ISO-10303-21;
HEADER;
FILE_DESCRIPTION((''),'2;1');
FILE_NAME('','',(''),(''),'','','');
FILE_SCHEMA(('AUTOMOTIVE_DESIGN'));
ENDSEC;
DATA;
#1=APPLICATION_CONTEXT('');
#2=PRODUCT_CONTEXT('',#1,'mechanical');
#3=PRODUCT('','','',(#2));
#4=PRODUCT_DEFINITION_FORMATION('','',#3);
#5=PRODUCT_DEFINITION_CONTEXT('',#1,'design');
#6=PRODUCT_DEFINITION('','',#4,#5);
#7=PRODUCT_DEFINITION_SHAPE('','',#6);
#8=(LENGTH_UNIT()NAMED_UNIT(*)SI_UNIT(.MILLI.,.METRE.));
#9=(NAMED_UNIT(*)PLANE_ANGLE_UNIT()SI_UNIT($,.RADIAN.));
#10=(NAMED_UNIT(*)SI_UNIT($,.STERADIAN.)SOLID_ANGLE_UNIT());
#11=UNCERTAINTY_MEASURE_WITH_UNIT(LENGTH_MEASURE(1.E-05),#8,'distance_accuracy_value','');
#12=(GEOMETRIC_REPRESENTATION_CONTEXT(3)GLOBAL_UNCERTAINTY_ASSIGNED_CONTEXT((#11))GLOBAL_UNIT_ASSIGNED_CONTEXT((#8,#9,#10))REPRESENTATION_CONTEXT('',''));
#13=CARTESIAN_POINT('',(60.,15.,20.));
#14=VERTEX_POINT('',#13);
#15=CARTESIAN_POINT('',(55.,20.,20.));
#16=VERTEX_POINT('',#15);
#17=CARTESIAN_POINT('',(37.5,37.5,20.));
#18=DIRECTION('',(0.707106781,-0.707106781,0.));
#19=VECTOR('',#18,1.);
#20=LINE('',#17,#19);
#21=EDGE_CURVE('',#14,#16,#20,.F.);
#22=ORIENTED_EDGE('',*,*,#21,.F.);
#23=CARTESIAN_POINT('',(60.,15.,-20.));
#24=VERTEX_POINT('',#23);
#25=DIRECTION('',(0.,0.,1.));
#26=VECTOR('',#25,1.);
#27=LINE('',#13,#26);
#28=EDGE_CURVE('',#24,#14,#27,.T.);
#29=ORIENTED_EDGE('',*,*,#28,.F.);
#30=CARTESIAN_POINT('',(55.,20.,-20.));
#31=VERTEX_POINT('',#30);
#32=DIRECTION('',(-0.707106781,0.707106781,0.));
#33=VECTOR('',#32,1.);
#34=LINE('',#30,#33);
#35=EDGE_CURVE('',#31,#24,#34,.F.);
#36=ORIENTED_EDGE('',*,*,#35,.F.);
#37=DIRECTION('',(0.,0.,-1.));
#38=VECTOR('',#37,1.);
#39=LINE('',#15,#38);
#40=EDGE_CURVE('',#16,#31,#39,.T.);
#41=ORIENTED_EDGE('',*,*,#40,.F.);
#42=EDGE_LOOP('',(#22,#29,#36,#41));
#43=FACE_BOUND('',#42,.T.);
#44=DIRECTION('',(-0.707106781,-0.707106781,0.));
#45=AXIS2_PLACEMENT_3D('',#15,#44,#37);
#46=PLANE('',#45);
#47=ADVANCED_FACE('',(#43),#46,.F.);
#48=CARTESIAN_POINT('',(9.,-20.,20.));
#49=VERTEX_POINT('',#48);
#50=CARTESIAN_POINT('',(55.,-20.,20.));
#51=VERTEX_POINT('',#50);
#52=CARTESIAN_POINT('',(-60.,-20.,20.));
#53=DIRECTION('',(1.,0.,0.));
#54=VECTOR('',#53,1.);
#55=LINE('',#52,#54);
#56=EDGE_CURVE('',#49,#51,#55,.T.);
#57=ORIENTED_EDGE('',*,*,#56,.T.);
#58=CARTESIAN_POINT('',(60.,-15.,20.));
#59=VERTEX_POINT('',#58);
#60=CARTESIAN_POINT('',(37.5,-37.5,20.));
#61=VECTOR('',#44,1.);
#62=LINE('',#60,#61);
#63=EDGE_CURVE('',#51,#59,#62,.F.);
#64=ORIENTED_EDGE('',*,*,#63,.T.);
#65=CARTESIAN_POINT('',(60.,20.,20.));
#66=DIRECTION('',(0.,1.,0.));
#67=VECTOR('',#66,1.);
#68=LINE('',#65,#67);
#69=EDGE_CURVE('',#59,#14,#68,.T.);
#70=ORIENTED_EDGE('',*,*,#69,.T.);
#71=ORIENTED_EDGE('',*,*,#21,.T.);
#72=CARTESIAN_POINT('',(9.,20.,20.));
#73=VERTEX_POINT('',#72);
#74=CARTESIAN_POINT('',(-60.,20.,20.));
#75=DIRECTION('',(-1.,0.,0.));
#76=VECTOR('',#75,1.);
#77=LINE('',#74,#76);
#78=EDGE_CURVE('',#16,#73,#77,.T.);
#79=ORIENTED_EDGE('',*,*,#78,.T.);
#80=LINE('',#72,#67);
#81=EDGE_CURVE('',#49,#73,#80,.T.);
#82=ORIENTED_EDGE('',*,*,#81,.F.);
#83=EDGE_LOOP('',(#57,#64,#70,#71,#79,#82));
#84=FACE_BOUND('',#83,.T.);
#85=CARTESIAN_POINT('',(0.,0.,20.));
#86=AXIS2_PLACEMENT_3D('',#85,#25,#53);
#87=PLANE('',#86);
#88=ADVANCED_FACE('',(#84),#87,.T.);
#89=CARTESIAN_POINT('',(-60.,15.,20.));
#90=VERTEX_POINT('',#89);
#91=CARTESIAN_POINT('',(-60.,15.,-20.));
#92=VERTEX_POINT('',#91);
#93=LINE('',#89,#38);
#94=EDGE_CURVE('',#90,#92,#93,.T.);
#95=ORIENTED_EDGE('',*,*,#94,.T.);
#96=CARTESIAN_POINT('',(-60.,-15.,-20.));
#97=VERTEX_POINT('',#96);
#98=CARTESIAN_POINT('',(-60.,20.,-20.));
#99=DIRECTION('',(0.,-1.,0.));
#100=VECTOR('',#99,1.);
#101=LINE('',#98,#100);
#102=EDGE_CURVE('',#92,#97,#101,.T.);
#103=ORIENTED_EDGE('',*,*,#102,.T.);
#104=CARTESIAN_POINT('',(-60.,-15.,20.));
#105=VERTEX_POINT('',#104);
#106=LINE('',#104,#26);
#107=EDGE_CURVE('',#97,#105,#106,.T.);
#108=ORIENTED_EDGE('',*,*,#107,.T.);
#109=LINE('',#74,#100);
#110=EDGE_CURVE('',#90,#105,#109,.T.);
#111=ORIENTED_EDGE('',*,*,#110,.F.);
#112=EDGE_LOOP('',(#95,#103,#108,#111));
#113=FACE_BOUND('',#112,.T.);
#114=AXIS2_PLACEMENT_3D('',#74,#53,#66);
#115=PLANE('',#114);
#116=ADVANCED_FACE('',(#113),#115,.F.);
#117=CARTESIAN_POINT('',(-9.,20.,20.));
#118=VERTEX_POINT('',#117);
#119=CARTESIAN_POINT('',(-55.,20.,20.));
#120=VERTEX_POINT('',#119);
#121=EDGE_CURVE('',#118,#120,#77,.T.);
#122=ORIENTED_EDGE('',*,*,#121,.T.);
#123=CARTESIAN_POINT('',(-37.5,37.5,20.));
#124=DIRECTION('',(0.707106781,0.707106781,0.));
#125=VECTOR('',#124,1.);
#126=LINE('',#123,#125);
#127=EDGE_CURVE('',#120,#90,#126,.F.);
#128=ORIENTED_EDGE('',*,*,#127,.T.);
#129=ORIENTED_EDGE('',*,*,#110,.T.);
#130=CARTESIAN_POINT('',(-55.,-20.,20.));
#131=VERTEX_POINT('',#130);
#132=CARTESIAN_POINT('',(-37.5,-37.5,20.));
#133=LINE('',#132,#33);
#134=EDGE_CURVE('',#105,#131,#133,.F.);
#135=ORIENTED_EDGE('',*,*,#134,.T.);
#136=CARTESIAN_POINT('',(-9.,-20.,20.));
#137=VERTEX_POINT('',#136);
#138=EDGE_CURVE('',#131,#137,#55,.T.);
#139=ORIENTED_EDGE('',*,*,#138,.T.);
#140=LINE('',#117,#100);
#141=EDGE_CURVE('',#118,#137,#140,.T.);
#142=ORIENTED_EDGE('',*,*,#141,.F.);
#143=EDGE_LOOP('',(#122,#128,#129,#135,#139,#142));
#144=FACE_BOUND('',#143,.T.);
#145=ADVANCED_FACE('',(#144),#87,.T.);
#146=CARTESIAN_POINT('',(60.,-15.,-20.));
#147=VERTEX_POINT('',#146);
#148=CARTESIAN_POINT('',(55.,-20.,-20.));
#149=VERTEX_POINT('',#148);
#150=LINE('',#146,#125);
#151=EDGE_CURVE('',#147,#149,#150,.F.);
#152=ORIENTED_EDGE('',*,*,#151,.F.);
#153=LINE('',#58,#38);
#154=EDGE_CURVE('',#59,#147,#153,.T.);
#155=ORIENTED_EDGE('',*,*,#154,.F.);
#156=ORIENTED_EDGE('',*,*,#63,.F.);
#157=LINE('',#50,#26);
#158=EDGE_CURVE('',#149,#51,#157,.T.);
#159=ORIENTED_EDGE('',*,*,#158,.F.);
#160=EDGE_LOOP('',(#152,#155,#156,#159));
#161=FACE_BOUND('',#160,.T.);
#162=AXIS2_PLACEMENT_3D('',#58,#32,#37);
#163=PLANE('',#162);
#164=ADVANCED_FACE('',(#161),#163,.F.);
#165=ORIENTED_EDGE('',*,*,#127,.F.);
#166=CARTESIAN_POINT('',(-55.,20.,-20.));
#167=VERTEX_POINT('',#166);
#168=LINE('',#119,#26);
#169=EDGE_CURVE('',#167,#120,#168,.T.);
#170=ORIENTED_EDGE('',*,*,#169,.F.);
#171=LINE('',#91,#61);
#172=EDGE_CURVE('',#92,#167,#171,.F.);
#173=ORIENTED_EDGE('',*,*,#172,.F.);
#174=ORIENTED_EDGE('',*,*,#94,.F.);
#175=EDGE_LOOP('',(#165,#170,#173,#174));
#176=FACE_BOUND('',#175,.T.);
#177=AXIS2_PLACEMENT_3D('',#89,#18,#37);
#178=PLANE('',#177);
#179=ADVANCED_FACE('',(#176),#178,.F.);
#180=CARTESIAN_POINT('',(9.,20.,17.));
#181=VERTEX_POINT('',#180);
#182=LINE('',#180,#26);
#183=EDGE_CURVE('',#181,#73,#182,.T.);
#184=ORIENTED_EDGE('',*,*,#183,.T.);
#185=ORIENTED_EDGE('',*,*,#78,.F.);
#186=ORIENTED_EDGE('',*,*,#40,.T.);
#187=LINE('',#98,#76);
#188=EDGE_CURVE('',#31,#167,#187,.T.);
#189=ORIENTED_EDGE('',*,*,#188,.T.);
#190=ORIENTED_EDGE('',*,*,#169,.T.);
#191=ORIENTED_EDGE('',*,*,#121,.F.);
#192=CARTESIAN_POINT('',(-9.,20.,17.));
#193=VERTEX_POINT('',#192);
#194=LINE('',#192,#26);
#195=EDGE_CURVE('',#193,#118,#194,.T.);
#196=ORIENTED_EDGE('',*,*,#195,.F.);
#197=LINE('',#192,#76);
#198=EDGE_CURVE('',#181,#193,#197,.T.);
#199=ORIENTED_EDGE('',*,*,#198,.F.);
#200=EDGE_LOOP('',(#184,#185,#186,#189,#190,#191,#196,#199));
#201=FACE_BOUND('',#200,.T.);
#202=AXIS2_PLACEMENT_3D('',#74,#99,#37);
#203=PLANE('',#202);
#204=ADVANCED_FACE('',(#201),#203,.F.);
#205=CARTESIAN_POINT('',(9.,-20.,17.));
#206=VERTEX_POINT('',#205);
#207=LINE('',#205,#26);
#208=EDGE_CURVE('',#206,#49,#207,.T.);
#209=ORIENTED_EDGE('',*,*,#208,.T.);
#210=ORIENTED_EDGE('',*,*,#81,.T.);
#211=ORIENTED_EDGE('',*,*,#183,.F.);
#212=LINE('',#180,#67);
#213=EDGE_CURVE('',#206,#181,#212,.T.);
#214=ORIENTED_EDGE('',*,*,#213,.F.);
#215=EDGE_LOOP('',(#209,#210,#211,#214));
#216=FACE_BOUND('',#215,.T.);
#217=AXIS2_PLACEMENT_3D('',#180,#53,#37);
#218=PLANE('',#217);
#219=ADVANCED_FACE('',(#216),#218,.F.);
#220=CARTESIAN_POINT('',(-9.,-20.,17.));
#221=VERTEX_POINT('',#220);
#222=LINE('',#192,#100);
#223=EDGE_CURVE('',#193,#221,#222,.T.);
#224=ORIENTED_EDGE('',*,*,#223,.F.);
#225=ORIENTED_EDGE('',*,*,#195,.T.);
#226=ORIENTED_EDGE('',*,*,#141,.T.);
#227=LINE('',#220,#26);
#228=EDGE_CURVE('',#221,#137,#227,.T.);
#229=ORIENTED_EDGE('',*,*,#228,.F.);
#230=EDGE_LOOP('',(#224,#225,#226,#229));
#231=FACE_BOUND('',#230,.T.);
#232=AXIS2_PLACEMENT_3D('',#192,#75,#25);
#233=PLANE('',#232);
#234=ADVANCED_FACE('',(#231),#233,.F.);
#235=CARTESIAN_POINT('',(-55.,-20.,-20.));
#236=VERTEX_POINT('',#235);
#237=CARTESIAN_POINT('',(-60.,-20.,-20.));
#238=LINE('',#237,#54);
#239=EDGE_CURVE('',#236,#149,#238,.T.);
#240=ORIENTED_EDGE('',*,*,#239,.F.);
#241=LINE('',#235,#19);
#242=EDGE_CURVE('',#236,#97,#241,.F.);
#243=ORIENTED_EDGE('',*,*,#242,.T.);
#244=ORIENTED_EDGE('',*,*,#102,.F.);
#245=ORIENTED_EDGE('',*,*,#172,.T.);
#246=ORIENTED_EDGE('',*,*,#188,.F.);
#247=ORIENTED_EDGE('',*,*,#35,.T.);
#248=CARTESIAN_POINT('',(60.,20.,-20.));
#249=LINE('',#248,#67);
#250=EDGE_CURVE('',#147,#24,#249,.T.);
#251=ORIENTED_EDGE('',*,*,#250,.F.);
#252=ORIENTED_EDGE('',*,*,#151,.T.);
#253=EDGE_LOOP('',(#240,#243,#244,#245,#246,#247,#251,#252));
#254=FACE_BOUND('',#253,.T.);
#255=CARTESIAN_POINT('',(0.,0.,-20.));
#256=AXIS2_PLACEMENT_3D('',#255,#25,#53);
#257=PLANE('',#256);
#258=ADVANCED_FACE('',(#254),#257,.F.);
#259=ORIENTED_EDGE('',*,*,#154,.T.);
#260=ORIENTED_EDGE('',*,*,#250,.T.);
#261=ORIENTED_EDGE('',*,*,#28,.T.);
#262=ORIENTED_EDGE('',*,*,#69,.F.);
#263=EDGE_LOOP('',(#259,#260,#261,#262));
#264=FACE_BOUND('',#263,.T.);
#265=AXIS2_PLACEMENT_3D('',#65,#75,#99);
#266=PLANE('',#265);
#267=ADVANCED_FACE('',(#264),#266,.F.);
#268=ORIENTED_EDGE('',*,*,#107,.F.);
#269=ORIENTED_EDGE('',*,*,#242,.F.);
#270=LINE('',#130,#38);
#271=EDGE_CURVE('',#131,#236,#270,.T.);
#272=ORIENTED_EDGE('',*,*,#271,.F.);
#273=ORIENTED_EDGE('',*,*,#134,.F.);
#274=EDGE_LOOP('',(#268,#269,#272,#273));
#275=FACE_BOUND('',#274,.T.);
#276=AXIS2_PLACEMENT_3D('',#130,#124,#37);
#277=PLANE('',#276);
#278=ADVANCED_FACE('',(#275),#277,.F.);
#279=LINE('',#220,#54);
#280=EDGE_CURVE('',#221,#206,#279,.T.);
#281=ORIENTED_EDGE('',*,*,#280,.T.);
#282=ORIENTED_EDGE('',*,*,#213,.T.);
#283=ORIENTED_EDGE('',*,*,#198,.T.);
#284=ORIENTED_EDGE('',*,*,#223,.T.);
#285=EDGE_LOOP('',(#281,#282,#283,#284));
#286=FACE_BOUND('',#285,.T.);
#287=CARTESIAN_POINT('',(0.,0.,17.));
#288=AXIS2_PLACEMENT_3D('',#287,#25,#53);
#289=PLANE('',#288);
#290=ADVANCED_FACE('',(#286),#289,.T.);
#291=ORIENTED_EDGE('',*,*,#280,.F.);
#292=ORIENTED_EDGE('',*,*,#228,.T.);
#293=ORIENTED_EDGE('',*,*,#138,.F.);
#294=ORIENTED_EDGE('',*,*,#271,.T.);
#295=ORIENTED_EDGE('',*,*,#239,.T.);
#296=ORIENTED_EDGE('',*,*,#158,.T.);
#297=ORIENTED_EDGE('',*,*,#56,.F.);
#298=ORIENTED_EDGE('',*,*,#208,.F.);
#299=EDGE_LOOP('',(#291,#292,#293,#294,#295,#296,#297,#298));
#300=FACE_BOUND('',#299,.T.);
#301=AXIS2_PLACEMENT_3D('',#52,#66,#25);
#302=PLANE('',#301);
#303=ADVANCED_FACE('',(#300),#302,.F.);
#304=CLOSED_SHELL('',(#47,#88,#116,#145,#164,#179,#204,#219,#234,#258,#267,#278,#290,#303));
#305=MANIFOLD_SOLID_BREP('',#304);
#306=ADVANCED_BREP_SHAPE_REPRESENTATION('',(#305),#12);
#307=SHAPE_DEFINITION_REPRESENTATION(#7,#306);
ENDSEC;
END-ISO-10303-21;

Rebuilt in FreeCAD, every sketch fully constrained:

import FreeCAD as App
import Part
import Sketcher

V = App.Vector
Q = App.Units.Quantity


def edges_at(feature, points):
    """Names of the edges that pass closest to the given points."""
    edges = feature.Shape.Edges
    near = lambda p: min(range(len(edges)), key=lambda i: edges[i].distToShape(Part.Vertex(*p))[0])
    return sorted({f"Edge{near(p) + 1}" for p in points})

doc = App.newDocument("Part")
body = doc.addObject("PartDesign::Body", "Body")

# Sketch on XY plane
sketch1 = body.newObject("Sketcher::SketchObject", "Sketch")
sketch1.AttachmentSupport = (doc.getObject("XY_Plane"), [""])
sketch1.MapMode = "FlatFace"
sketch1.addGeometry([
    Part.LineSegment(V(-60, 20, 0), V(-60, -20, 0)),
    Part.LineSegment(V(-60, -20, 0), V(60, -20, 0)),
    Part.LineSegment(V(60, -20, 0), V(60, 20, 0)),
    Part.LineSegment(V(60, 20, 0), V(-60, 20, 0)),
], False)
sketch1.addConstraint([
    Sketcher.Constraint("Coincident", 0, 2, 1, 1),
    Sketcher.Constraint("Coincident", 1, 2, 2, 1),
    Sketcher.Constraint("Coincident", 2, 2, 3, 1),
    Sketcher.Constraint("Coincident", 3, 2, 0, 1),
    Sketcher.Constraint("Vertical", 0),
    Sketcher.Constraint("Horizontal", 1),
    Sketcher.Constraint("Vertical", 2),
    Sketcher.Constraint("Horizontal", 3),
    Sketcher.Constraint("Symmetric", 0, 2, 2, 2, -1, 1),
    Sketcher.Constraint("DistanceX", 1, 1, 1, 2, Q("120 mm")),
    Sketcher.Constraint("DistanceY", 0, 2, 0, 1, Q("40 mm")),
])
pad1 = body.newObject("PartDesign::Pad", "Pad")
pad1.Profile = sketch1
pad1.Length = 40
pad1.Midplane = True

# Sketch on XY plane
sketch2 = body.newObject("Sketcher::SketchObject", "Sketch001")
sketch2.AttachmentSupport = (doc.getObject("XY_Plane"), [""])
sketch2.MapMode = "FlatFace"
sketch2.AttachmentOffset = App.Placement(V(0, 0, 20), App.Rotation())
sketch2.addGeometry([
    Part.LineSegment(V(-9, 20, 0), V(-9, -20, 0)),
    Part.LineSegment(V(-9, -20, 0), V(9, -20, 0)),
    Part.LineSegment(V(9, -20, 0), V(9, 20, 0)),
    Part.LineSegment(V(9, 20, 0), V(-9, 20, 0)),
], False)
sketch2.addConstraint([
    Sketcher.Constraint("Coincident", 0, 2, 1, 1),
    Sketcher.Constraint("Coincident", 1, 2, 2, 1),
    Sketcher.Constraint("Coincident", 2, 2, 3, 1),
    Sketcher.Constraint("Coincident", 3, 2, 0, 1),
    Sketcher.Constraint("Vertical", 0),
    Sketcher.Constraint("Horizontal", 1),
    Sketcher.Constraint("Vertical", 2),
    Sketcher.Constraint("Horizontal", 3),
    Sketcher.Constraint("Symmetric", 0, 2, 2, 2, -1, 1),
    Sketcher.Constraint("DistanceX", 1, 1, 1, 2, Q("18 mm")),
    Sketcher.Constraint("DistanceY", 0, 2, 0, 1, Q("40 mm")),
])
pocket1 = body.newObject("PartDesign::Pocket", "Pocket")
pocket1.Profile = sketch2
pocket1.Length = 3
doc.recompute()

chamfer = body.newObject("PartDesign::Chamfer", "Chamfer")
chamfer.Base = (pocket1, edges_at(pocket1, [
    (60, -20, 0),
    (-60, -20, 0),
    (-60, 20, 0),
    (60, 20, 0),
]))
chamfer.Size = 5

doc.recompute()
